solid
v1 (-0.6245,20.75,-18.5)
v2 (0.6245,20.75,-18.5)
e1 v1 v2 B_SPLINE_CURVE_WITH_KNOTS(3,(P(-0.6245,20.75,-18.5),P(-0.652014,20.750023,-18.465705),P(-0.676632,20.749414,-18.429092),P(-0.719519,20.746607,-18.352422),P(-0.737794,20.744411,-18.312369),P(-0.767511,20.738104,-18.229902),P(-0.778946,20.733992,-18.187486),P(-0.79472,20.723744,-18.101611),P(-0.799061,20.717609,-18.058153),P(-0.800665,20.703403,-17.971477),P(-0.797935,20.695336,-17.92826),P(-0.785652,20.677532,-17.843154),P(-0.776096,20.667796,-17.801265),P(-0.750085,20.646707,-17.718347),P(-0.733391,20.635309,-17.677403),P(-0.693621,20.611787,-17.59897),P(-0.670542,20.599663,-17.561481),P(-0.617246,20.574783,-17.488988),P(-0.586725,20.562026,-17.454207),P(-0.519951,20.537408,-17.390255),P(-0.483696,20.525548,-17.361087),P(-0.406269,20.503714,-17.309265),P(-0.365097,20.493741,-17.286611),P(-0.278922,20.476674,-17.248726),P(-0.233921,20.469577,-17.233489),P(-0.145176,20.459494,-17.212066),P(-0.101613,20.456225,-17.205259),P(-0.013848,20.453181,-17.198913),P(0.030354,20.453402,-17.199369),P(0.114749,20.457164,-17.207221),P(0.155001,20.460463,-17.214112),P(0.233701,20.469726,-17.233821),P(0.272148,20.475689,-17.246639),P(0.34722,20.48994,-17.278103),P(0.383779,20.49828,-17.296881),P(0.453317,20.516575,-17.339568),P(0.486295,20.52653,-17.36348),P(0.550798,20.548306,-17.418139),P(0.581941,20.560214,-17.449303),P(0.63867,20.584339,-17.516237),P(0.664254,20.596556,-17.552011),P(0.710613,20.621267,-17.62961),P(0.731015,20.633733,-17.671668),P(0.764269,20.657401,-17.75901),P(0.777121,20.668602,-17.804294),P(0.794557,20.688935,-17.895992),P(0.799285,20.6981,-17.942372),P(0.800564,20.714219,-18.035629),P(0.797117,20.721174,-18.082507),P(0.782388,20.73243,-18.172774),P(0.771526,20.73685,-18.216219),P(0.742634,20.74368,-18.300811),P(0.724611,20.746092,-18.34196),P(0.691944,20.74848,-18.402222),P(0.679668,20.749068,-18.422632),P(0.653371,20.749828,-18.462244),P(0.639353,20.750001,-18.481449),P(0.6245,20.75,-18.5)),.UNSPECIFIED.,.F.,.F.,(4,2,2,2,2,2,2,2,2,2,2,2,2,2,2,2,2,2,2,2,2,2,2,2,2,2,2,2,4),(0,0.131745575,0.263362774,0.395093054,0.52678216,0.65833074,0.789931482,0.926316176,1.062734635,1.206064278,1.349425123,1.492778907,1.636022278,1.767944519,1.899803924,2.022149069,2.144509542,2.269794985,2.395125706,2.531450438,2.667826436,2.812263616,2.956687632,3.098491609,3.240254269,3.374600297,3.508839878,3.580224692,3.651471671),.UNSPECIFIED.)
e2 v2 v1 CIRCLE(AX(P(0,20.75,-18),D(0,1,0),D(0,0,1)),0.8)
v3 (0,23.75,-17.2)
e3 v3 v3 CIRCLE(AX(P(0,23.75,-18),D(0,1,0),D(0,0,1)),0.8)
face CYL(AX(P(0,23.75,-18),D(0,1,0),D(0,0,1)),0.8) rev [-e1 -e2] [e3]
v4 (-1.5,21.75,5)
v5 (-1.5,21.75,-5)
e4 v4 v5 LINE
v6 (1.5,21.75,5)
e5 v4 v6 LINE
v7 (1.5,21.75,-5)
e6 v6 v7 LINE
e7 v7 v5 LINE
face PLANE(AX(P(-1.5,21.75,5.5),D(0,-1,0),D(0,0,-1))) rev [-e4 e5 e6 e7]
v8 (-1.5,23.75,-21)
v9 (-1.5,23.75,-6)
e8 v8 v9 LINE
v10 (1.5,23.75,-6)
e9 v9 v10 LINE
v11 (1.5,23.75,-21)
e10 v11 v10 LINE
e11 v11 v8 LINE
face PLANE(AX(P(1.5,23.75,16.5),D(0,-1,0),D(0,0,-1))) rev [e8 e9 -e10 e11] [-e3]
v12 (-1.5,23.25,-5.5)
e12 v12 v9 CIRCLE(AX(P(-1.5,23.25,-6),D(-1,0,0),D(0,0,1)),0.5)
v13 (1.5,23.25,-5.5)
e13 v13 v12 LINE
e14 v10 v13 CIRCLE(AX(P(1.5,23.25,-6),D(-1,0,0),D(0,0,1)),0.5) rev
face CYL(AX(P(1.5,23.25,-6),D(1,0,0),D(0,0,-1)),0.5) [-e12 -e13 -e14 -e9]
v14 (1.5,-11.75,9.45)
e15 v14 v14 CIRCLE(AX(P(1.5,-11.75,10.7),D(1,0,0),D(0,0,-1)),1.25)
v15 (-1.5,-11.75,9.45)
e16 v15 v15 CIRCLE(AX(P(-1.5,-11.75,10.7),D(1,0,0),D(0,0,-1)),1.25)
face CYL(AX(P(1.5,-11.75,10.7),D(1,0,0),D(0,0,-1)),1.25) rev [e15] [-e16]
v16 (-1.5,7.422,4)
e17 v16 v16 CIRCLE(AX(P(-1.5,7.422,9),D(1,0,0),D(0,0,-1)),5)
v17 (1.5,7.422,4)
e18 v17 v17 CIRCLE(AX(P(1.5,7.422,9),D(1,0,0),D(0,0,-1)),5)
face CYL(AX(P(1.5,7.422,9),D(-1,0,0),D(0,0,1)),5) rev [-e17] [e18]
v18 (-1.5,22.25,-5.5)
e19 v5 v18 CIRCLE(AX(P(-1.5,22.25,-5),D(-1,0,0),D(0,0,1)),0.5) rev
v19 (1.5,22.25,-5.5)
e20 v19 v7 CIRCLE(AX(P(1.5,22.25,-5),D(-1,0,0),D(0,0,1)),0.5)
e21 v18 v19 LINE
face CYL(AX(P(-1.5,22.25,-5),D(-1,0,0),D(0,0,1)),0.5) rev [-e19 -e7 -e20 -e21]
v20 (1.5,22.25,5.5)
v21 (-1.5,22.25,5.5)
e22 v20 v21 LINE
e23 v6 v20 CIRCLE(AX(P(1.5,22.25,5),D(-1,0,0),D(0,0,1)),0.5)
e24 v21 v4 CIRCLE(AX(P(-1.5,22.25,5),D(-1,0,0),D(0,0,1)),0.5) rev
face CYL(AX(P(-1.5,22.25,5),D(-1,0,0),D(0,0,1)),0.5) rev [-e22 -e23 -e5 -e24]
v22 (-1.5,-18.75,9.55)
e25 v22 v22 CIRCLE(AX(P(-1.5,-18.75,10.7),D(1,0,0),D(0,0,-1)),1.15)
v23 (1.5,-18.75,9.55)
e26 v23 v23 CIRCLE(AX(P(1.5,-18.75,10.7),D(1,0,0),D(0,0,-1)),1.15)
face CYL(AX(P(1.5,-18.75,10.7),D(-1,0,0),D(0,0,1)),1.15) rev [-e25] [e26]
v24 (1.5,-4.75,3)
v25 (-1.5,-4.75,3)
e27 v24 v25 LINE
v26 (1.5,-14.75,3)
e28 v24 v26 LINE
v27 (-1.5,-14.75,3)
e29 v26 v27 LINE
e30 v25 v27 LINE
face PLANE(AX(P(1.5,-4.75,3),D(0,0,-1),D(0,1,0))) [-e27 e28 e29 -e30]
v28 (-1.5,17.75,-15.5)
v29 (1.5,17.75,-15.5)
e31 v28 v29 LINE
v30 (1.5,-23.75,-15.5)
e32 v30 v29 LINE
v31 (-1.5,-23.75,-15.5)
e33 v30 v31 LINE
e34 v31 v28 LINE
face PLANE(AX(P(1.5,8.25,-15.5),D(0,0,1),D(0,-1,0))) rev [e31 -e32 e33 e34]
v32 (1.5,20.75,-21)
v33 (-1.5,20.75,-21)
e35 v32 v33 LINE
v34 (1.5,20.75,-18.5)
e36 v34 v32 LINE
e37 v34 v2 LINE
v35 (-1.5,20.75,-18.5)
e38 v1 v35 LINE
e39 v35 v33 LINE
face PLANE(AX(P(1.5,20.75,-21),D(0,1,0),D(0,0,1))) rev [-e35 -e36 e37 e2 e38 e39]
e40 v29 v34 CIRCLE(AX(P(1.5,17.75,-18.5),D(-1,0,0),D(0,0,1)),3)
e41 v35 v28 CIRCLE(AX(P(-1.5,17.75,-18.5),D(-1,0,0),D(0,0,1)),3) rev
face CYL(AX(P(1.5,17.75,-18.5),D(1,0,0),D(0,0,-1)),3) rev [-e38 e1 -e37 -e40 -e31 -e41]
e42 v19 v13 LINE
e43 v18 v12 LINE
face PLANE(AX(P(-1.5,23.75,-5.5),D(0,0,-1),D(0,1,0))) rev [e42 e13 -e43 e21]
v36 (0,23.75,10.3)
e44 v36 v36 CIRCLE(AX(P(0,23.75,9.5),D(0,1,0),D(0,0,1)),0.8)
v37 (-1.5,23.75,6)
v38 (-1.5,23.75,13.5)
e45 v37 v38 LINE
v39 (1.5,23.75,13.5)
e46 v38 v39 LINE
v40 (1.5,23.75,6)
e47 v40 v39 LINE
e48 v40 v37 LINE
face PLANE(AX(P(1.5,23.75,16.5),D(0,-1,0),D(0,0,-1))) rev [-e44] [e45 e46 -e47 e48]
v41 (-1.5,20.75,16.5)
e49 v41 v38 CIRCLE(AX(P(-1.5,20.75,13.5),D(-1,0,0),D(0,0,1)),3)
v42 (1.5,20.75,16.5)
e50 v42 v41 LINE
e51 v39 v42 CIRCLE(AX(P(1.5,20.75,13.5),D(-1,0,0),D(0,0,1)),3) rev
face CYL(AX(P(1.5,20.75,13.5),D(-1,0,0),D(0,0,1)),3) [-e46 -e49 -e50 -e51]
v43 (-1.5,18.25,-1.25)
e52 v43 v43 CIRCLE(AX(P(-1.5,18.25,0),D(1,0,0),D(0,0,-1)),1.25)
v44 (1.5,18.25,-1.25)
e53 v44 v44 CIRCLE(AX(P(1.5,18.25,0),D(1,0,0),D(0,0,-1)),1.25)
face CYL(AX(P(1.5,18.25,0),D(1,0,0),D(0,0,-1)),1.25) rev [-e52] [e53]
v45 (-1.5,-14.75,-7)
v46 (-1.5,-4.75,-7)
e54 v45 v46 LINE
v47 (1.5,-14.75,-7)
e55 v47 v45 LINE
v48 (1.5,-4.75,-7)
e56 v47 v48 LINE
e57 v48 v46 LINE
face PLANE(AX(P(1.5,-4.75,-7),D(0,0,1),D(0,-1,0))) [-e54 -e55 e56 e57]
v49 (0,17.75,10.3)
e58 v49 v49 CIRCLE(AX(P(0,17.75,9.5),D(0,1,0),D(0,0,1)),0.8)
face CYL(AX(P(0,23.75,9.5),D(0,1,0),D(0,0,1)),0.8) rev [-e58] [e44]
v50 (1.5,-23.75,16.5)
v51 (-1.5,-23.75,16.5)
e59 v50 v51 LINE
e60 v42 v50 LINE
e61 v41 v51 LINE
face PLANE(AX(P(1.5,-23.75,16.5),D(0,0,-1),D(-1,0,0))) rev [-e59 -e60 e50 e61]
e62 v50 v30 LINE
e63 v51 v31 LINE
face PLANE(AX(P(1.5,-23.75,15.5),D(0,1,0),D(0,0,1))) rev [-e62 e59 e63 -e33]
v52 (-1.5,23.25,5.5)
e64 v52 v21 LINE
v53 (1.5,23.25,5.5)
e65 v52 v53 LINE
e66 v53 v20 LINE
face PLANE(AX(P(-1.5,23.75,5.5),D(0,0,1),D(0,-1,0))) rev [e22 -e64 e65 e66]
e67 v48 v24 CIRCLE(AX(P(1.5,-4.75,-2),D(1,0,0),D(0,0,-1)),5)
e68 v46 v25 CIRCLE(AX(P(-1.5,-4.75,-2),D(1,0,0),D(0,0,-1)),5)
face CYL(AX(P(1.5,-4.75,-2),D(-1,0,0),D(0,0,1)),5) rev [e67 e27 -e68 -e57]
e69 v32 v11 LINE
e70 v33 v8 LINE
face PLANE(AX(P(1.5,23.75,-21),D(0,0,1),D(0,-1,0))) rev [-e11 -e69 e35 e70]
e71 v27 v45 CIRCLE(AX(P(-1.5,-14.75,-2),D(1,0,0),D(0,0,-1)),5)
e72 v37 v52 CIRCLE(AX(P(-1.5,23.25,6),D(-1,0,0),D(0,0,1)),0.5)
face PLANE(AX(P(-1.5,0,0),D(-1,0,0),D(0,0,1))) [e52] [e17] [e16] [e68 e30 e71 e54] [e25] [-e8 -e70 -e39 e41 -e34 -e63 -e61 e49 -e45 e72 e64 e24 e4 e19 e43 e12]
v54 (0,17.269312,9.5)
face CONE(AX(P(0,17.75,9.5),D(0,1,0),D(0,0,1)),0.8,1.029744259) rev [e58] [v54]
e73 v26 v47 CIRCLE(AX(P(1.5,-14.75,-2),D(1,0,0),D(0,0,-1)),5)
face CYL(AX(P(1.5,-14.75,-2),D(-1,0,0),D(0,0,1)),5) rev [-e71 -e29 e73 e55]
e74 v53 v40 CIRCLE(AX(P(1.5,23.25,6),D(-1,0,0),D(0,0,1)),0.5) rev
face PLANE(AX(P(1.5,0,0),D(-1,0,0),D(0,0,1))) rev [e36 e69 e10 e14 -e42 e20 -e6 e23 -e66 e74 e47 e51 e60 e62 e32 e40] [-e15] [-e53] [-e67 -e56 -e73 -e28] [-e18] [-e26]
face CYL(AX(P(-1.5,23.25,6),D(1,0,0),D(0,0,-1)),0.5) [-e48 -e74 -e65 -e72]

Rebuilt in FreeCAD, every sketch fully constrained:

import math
import FreeCAD as App
import Part
import Sketcher

V = App.Vector
Q = App.Units.Quantity


def edges_at(feature, points):
    """Names of the edges that pass closest to the given points."""
    edges = feature.Shape.Edges
    near = lambda p: min(range(len(edges)), key=lambda i: edges[i].distToShape(Part.Vertex(*p))[0])
    return sorted({f"Edge{near(p) + 1}" for p in points})

doc = App.newDocument("Part")
body = doc.addObject("PartDesign::Body", "Body")

sketch1 = doc.addObject("Sketcher::SketchObject", "Sketch")
body.addObject(sketch1)
sketch1.AttachmentSupport = (doc.YZ_Plane, [""])
sketch1.MapMode = "FlatFace"
sketch1.addGeometry([
    Part.LineSegment(V(23.75, -21, 0), V(23.75, 16.5, 0)),
    Part.LineSegment(V(23.75, 16.5, 0), V(-23.75, 16.5, 0)),
    Part.LineSegment(V(-23.75, 16.5, 0), V(-23.75, -15.5, 0)),
    Part.LineSegment(V(-23.75, -15.5, 0), V(20.75, -15.5, 0)),
    Part.LineSegment(V(20.75, -15.5, 0), V(20.75, -21, 0)),
    Part.LineSegment(V(20.75, -21, 0), V(23.75, -21, 0)),
    Part.LineSegment(V(-4.75, -7, 0), V(-14.75, -7, 0)),
    Part.ArcOfCircle(Part.Circle(V(-14.75, -2, 0), V(0, 0, 1), 5), math.radians(90), math.radians(270)),
    Part.LineSegment(V(-14.75, 3, 0), V(-4.75, 3, 0)),
    Part.ArcOfCircle(Part.Circle(V(-4.75, -2, 0), V(0, 0, 1), 5), math.radians(-90), math.radians(90)),
    Part.Circle(V(-18.75, 10.7, 0), V(0, 0, 1), 1.15),
    Part.Circle(V(7.422, 9, 0), V(0, 0, 1), 5),
], False)
sketch1.addConstraint([
    Sketcher.Constraint("Coincident", 0, 2, 1, 1),
    Sketcher.Constraint("Coincident", 1, 2, 2, 1),
    Sketcher.Constraint("Coincident", 2, 2, 3, 1),
    Sketcher.Constraint("Coincident", 3, 2, 4, 1),
    Sketcher.Constraint("Coincident", 4, 2, 5, 1),
    Sketcher.Constraint("Coincident", 5, 2, 0, 1),
    Sketcher.Constraint("Tangent", 6, 2, 7, 2),
    Sketcher.Constraint("Tangent", 7, 1, 8, 1),
    Sketcher.Constraint("Tangent", 8, 2, 9, 2),
    Sketcher.Constraint("Tangent", 9, 1, 6, 1),
    Sketcher.Constraint("Vertical", 0),
    Sketcher.Constraint("Horizontal", 1),
    Sketcher.Constraint("Vertical", 2),
    Sketcher.Constraint("Horizontal", 3),
    Sketcher.Constraint("Vertical", 4),
    Sketcher.Constraint("Horizontal", 5),
    Sketcher.Constraint("Horizontal", 6),
    Sketcher.Constraint("Horizontal", 8),
    Sketcher.Constraint("Equal", 9, 11),
    Sketcher.Constraint("Diameter", 11, Q("10 mm")),
    Sketcher.Constraint("Diameter", 10, Q("2.3 mm")),
    Sketcher.Constraint("DistanceX", 5, 1, 5, 2, Q("3 mm")),
    Sketcher.Constraint("DistanceX", 6, 2, 6, 1, Q("10 mm")),
    Sketcher.Constraint("DistanceY", 2, 2, 2, 1, Q("32 mm")),
    Sketcher.Constraint("DistanceX", 1, 2, 1, 1, Q("47.5 mm")),
    Sketcher.Constraint("DistanceY", 0, 1, 0, 2, Q("37.5 mm")),
    Sketcher.Constraint("DistanceY", 7, 3, -1, 1, Q("2 mm")),
    Sketcher.Constraint("DistanceY", -1, 1, 11, 3, Q("9 mm")),
    Sketcher.Constraint("DistanceY", 4, 2, -1, 1, Q("21 mm")),
    Sketcher.Constraint("DistanceX", 10, 3, 7, 3, Q("4 mm")),
    Sketcher.Constraint("DistanceX", 1, 2, 10, 3, Q("5 mm")),
    Sketcher.Constraint("DistanceY", -1, 1, 10, 3, Q("10.7 mm")),
    Sketcher.Constraint("DistanceX", 7, 3, -1, 1, Q("14.75 mm")),
    Sketcher.Constraint("DistanceX", -1, 1, 11, 3, Q("7.422 mm")),
])
pad1 = doc.addObject("PartDesign::Pad", "Pad")
body.addObject(pad1)
pad1.Profile = sketch1
pad1.Length = 3
pad1.Midplane = True
doc.recompute()

fillet = doc.addObject("PartDesign::Fillet", "Fillet")
body.addObject(fillet)
fillet.Base = (pad1, edges_at(pad1, [(0, 23.75, 16.5), (0, 20.75, -15.5)]))
fillet.Radius = 3

sketch2 = doc.addObject("Sketcher::SketchObject", "Sketch001")
body.addObject(sketch2)
sketch2.AttachmentSupport = (doc.XZ_Plane, [""])
sketch2.MapMode = "FlatFace"
sketch2.AttachmentOffset = App.Placement(V(0, 0, -23.75), App.Rotation())
sketch2.addGeometry([
    Part.Circle(V(0, 9.5, 0), V(0, 0, 1), 0.8),
    Part.Circle(V(0, -18, 0), V(0, 0, 1), 0.8),
], False)
sketch2.addConstraint([
    Sketcher.Constraint("Equal", 0, 1),
    Sketcher.Constraint("PointOnObject", 0, 3, -2),
    Sketcher.Constraint("PointOnObject", 1, 3, -2),
    Sketcher.Constraint("Diameter", 0, Q("1.6 mm")),
    Sketcher.Constraint("DistanceY", 1, 3, -1, 1, Q("18 mm")),
    Sketcher.Constraint("DistanceY", -1, 1, 0, 3, Q("9.5 mm")),
])
doc.recompute()
hole = doc.addObject("PartDesign::Hole", "Hole")
body.addObject(hole)
hole.Profile = sketch2
hole.ThreadType = "None"
hole.Diameter = 1.6
hole.DepthType = "Dimension"
hole.Depth = 6
hole.DrillPoint = "Angled"
hole.DrillPointAngle = 118
hole.Reversed = True

sketch3 = doc.addObject("Sketcher::SketchObject", "Sketch002")
body.addObject(sketch3)
sketch3.AttachmentSupport = (doc.YZ_Plane, [""])
sketch3.MapMode = "FlatFace"
sketch3.AttachmentOffset = App.Placement(V(0, 0, 1.5), App.Rotation())
sketch3.addGeometry([
    Part.Circle(V(-11.75, 10.7, 0), V(0, 0, 1), 1.25),
    Part.Circle(V(18.25, 0, 0), V(0, 0, 1), 1.25),
], False)
sketch3.addConstraint([
    Sketcher.Constraint("Equal", 0, 1),
    Sketcher.Constraint("PointOnObject", 1, 3, -1),
    Sketcher.Constraint("Diameter", 0, Q("2.5 mm")),
    Sketcher.Constraint("DistanceX", 0, 3, 1, 3, Q("30 mm")),
    Sketcher.Constraint("DistanceY", -1, 1, 0, 3, Q("10.7 mm")),
    Sketcher.Constraint("DistanceX", 0, 3, -1, 1, Q("11.75 mm")),
])
doc.recompute()
hole2 = doc.addObject("PartDesign::Hole", "Hole001")
body.addObject(hole2)
hole2.Profile = sketch3
hole2.ThreadType = "None"
hole2.Diameter = 2.5
hole2.DepthType = "ThroughAll"

sketch4 = doc.addObject("Sketcher::SketchObject", "Sketch003")
body.addObject(sketch4)
sketch4.AttachmentSupport = (doc.YZ_Plane, [""])
sketch4.MapMode = "FlatFace"
sketch4.AttachmentOffset = App.Placement(V(0, 0, 1.5), App.Rotation())
sketch4.addGeometry([
    Part.LineSegment(V(23.75, 5.5, 0), V(21.75, 5.5, 0)),
    Part.LineSegment(V(21.75, 5.5, 0), V(21.75, -5.5, 0)),
    Part.LineSegment(V(21.75, -5.5, 0), V(23.75, -5.5, 0)),
    Part.LineSegment(V(23.75, -5.5, 0), V(23.75, 5.5, 0)),
], False)
sketch4.addConstraint([
    Sketcher.Constraint("Coincident", 0, 2, 1, 1),
    Sketcher.Constraint("Coincident", 1, 2, 2, 1),
    Sketcher.Constraint("Coincident", 2, 2, 3, 1),
    Sketcher.Constraint("Coincident", 3, 2, 0, 1),
    Sketcher.Constraint("Horizontal", 0),
    Sketcher.Constraint("Vertical", 1),
    Sketcher.Constraint("Horizontal", 2),
    Sketcher.Constraint("Vertical", 3),
    Sketcher.Constraint("DistanceX", 0, 2, 0, 1, Q("2 mm")),
    Sketcher.Constraint("DistanceY", 1, 2, 1, 1, Q("11 mm")),
    Sketcher.Constraint("DistanceY", -1, 1, 0, 2, Q("5.5 mm")),
    Sketcher.Constraint("DistanceX", -1, 1, 0, 2, Q("21.75 mm")),
])
pocket1 = doc.addObject("PartDesign::Pocket", "Pocket")
body.addObject(pocket1)
pocket1.Profile = sketch4
pocket1.Type = "ThroughAll"
doc.recompute()

fillet2 = doc.addObject("PartDesign::Fillet", "Fillet001")
body.addObject(fillet2)
fillet2.Base = (pocket1, edges_at(pocket1, [
    (0, 21.75, 5.5),
    (0, 23.75, 5.5),
    (0, 23.75, -5.5),
    (0, 21.75, -5.5),
]))
fillet2.Radius = 0.5

doc.recompute()
